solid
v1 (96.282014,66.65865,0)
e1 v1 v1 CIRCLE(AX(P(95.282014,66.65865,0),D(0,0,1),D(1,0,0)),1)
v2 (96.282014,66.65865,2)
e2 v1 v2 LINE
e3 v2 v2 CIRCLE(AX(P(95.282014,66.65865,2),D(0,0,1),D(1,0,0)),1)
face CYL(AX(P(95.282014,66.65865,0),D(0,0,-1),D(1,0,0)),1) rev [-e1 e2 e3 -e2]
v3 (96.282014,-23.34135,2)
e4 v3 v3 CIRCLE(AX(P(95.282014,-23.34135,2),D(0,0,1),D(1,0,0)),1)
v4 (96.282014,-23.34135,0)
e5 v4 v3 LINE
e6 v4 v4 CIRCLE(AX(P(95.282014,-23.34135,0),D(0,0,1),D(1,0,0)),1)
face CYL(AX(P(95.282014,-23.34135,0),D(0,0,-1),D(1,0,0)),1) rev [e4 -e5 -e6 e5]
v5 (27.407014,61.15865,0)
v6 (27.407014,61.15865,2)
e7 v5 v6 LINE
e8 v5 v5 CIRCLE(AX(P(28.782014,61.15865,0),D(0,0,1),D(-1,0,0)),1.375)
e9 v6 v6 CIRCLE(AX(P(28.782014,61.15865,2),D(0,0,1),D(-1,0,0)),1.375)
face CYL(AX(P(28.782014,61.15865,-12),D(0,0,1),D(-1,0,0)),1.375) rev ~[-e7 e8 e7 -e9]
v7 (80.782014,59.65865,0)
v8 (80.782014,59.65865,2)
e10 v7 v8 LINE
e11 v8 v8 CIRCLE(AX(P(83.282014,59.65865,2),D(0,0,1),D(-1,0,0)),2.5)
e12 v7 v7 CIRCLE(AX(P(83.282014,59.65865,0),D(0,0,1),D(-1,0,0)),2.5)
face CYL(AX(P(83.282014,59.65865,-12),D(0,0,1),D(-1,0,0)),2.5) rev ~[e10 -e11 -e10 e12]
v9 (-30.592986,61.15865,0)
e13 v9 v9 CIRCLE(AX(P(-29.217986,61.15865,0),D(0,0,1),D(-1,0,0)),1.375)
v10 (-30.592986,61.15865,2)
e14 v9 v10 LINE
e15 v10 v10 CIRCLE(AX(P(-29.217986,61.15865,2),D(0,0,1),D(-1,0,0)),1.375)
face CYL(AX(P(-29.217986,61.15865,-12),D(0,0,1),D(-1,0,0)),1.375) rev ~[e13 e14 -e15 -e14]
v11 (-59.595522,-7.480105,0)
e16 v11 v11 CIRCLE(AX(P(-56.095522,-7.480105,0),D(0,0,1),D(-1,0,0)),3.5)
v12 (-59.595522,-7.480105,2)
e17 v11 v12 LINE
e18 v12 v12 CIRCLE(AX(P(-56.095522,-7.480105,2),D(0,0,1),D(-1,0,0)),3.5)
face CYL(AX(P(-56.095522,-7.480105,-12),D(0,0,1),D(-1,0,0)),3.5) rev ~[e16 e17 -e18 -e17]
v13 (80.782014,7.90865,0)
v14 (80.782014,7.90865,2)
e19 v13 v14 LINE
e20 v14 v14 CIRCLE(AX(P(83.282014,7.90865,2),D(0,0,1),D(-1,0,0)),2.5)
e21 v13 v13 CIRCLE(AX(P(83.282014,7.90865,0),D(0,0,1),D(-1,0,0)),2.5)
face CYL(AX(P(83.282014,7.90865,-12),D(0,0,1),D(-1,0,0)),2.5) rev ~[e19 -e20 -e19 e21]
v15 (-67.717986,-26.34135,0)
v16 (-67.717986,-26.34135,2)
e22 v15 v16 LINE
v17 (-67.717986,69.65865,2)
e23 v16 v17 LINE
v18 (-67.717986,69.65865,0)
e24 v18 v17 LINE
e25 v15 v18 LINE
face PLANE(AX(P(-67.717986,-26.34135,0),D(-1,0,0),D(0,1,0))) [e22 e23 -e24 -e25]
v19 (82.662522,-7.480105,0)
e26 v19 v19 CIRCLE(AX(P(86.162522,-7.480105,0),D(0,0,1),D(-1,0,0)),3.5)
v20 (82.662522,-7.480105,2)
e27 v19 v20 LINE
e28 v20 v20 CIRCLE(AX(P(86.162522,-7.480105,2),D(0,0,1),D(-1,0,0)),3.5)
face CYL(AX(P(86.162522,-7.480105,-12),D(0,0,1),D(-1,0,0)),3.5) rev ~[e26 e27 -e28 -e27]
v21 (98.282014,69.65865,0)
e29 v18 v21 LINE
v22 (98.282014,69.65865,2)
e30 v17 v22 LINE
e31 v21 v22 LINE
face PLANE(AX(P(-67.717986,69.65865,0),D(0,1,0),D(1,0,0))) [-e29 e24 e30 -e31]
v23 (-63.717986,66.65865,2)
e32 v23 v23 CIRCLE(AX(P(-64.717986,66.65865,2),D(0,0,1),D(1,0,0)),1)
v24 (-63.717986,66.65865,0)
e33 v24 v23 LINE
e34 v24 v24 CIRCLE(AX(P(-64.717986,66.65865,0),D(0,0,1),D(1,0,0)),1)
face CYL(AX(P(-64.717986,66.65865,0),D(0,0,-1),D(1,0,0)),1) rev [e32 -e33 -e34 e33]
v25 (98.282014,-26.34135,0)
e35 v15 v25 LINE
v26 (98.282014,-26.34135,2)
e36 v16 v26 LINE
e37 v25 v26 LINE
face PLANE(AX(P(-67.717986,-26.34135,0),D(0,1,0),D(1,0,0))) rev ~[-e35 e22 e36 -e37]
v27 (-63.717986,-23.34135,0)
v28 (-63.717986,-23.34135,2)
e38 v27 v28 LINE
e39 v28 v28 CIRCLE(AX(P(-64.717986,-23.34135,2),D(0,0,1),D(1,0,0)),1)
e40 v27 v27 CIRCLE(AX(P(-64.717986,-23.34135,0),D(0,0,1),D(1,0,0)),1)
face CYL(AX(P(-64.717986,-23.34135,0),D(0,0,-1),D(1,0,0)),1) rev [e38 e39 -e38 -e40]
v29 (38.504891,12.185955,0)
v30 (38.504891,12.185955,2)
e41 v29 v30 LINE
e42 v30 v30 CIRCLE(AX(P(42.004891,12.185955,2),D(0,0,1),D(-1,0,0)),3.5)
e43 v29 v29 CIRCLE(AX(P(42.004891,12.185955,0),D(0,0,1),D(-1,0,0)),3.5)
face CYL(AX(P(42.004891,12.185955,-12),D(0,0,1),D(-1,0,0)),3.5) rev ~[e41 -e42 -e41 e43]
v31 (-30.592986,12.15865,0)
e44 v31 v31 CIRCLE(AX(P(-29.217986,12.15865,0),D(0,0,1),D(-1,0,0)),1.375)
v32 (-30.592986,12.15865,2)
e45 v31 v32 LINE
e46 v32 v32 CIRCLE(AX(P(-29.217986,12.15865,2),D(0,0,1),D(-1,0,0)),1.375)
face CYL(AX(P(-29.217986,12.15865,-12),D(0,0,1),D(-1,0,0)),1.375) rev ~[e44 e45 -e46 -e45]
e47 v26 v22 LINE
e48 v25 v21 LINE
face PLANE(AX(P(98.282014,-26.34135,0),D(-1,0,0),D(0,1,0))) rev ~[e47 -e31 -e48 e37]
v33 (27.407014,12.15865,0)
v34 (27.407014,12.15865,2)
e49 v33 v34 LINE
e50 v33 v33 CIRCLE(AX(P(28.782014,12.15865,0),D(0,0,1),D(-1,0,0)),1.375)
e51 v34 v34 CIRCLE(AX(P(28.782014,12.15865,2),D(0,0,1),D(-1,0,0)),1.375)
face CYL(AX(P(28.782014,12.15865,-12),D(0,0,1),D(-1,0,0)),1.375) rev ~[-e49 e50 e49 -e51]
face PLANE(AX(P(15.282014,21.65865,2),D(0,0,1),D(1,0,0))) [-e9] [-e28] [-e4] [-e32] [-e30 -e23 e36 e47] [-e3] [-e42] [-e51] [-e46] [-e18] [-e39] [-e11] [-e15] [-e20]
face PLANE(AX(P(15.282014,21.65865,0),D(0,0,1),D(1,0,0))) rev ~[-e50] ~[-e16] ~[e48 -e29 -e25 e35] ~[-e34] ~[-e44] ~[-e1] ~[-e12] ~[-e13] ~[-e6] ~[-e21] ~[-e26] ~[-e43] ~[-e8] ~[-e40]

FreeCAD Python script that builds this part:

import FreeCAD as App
import Part
import Sketcher
Q = App.Units.Quantity


def add_polygon(sketch, points):
    """Adds a closed chain of lines whose ends are joined by coincident constraints."""
    first, n = sketch.GeometryCount, len(points)
    for a, b in zip(points, points[1:] + points[:1]):
        sketch.addGeometry(Part.LineSegment(App.Vector(*a, 0), App.Vector(*b, 0)), False)
    for i in range(n):
        sketch.addConstraint(Sketcher.Constraint("Coincident", first + i, 2, first + (i + 1) % n, 1))

doc = App.newDocument("Part")
body = doc.addObject("PartDesign::Body", "Body")

sketch1 = doc.addObject("Sketcher::SketchObject", "Sketch")
body.addObject(sketch1)
sketch1.AttachmentSupport = (doc.XY_Plane, [""])
sketch1.MapMode = "FlatFace"
add_polygon(sketch1, [(-67.7, 69.7), (-67.7, -26.3), (98.3, -26.3), (98.3, 69.7)])
sketch1.addGeometry(Part.Circle(App.Vector(-64.7, -23.3, 0), App.Vector(0, 0, 1), 1), False)
sketch1.addGeometry(Part.Circle(App.Vector(95.3, -23.3, 0), App.Vector(0, 0, 1), 1), False)
sketch1.addGeometry(Part.Circle(App.Vector(-64.7, 66.7, 0), App.Vector(0, 0, 1), 1), False)
sketch1.addGeometry(Part.Circle(App.Vector(95.3, 66.7, 0), App.Vector(0, 0, 1), 1), False)
sketch1.addConstraint(Sketcher.Constraint("Vertical", 0))
sketch1.addConstraint(Sketcher.Constraint("Horizontal", 1))
sketch1.addConstraint(Sketcher.Constraint("Vertical", 2))
sketch1.addConstraint(Sketcher.Constraint("Horizontal", 3))
sketch1.addConstraint(Sketcher.Constraint("Equal", 4, 5))
sketch1.addConstraint(Sketcher.Constraint("Equal", 5, 6))
sketch1.addConstraint(Sketcher.Constraint("Equal", 6, 7))
sketch1.addConstraint(Sketcher.Constraint("Horizontal", 4, 3, 5, 3))
sketch1.addConstraint(Sketcher.Constraint("Horizontal", 6, 3, 7, 3))
sketch1.addConstraint(Sketcher.Constraint("Vertical", 4, 3, 6, 3))
sketch1.addConstraint(Sketcher.Constraint("Vertical", 5, 3, 7, 3))
sketch1.addConstraint(Sketcher.Constraint("Diameter", 4, Q("2 mm")))
sketch1.addConstraint(Sketcher.Constraint("DistanceX", 1, 1, 1, 2, Q("166 mm")))
sketch1.addConstraint(Sketcher.Constraint("DistanceY", 0, 2, 0, 1, Q("96 mm")))
sketch1.addConstraint(Sketcher.Constraint("DistanceX", 4, 3, 5, 3, Q("160 mm")))
sketch1.addConstraint(Sketcher.Constraint("DistanceY", 4, 3, 6, 3, Q("90 mm")))
sketch1.addConstraint(Sketcher.Constraint("DistanceX", 0, 2, 4, 3, Q("3 mm")))
sketch1.addConstraint(Sketcher.Constraint("DistanceY", 0, 2, 4, 3, Q("3 mm")))
sketch1.addConstraint(Sketcher.Constraint("DistanceY", 4, 3, -1, 1, Q("23.34135 mm")))
sketch1.addConstraint(Sketcher.Constraint("DistanceX", 4, 3, -1, 1, Q("64.717986 mm")))
pad1 = doc.addObject("PartDesign::Pad", "Pad")
body.addObject(pad1)
pad1.Profile = sketch1
pad1.Length = 2

sketch2 = doc.addObject("Sketcher::SketchObject", "Sketch001")
body.addObject(sketch2)
sketch2.AttachmentSupport = (doc.XY_Plane, [""])
sketch2.MapMode = "FlatFace"
sketch2.addGeometry(Part.Circle(App.Vector(83.3, 59.7, 0), App.Vector(0, 0, 1), 2.5), False)
sketch2.addGeometry(Part.Circle(App.Vector(83.3, 7.9, 0), App.Vector(0, 0, 1), 2.5), False)
sketch2.addConstraint(Sketcher.Constraint("Equal", 0, 1))
sketch2.addConstraint(Sketcher.Constraint("Vertical", 0, 3, 1, 3))
sketch2.addConstraint(Sketcher.Constraint("Diameter", 0, Q("5 mm")))
sketch2.addConstraint(Sketcher.Constraint("DistanceY", 1, 3, 0, 3, Q("51.75 mm")))
sketch2.addConstraint(Sketcher.Constraint("DistanceY", -1, 1, 0, 3, Q("59.65865 mm")))
sketch2.addConstraint(Sketcher.Constraint("DistanceX", -1, 1, 0, 3, Q("83.282014 mm")))
doc.recompute()
hole = doc.addObject("PartDesign::Hole", "Hole")
body.addObject(hole)
hole.Profile = sketch2
hole.ThreadType = "None"
hole.Diameter = 5
hole.DepthType = "Dimension"
hole.Depth = 12
hole.DrillPoint = "Angled"
hole.DrillPointAngle = 118
hole.Reversed = True

sketch3 = doc.addObject("Sketcher::SketchObject", "Sketch002")
body.addObject(sketch3)
sketch3.AttachmentSupport = (doc.XY_Plane, [""])
sketch3.MapMode = "FlatFace"
sketch3.addGeometry(Part.Circle(App.Vector(-29.2, 61.2, 0), App.Vector(0, 0, 1), 1.4), False)
sketch3.addGeometry(Part.Circle(App.Vector(-29.2, 12.2, 0), App.Vector(0, 0, 1), 1.4), False)
sketch3.addGeometry(Part.Circle(App.Vector(28.8, 12.2, 0), App.Vector(0, 0, 1), 1.4), False)
sketch3.addGeometry(Part.Circle(App.Vector(28.8, 61.2, 0), App.Vector(0, 0, 1), 1.4), False)
sketch3.addConstraint(Sketcher.Constraint("Equal", 0, 1))
sketch3.addConstraint(Sketcher.Constraint("Equal", 1, 2))
sketch3.addConstraint(Sketcher.Constraint("Equal", 2, 3))
sketch3.addConstraint(Sketcher.Constraint("Horizontal", 1, 3, 2, 3))
sketch3.addConstraint(Sketcher.Constraint("Horizontal", 0, 3, 3, 3))
sketch3.addConstraint(Sketcher.Constraint("Vertical", 0, 3, 1, 3))
sketch3.addConstraint(Sketcher.Constraint("Vertical", 2, 3, 3, 3))
sketch3.addConstraint(Sketcher.Constraint("Diameter", 0, Q("2.75 mm")))
sketch3.addConstraint(Sketcher.Constraint("DistanceY", 1, 3, 0, 3, Q("49 mm")))
sketch3.addConstraint(Sketcher.Constraint("DistanceX", 1, 3, 2, 3, Q("58 mm")))
sketch3.addConstraint(Sketcher.Constraint("DistanceY", -1, 1, 0, 3, Q("61.15865 mm")))
sketch3.addConstraint(Sketcher.Constraint("DistanceX", 0, 3, -1, 1, Q("29.217986 mm")))
doc.recompute()
hole2 = doc.addObject("PartDesign::Hole", "Hole001")
body.addObject(hole2)
hole2.Profile = sketch3
hole2.ThreadType = "None"
hole2.Diameter = 2.75
hole2.DepthType = "Dimension"
hole2.Depth = 12
hole2.DrillPoint = "Angled"
hole2.DrillPointAngle = 118
hole2.Reversed = True

sketch4 = doc.addObject("Sketcher::SketchObject", "Sketch003")
body.addObject(sketch4)
sketch4.AttachmentSupport = (doc.XY_Plane, [""])
sketch4.MapMode = "FlatFace"
sketch4.addGeometry(Part.Circle(App.Vector(-56.1, -7.5, 0), App.Vector(0, 0, 1), 3.5), False)
sketch4.addGeometry(Part.Circle(App.Vector(86.2, -7.5, 0), App.Vector(0, 0, 1), 3.5), False)
sketch4.addGeometry(Part.Circle(App.Vector(42, 12.2, 0), App.Vector(0, 0, 1), 3.5), False)
sketch4.addConstraint(Sketcher.Constraint("Equal", 0, 1))
sketch4.addConstraint(Sketcher.Constraint("Equal", 1, 2))
sketch4.addConstraint(Sketcher.Constraint("Horizontal", 0, 3, 1, 3))
sketch4.addConstraint(Sketcher.Constraint("Diameter", 0, Q("7 mm")))
sketch4.addConstraint(Sketcher.Constraint("DistanceX", 0, 3, -1, 1, Q("56.095522 mm")))
sketch4.addConstraint(Sketcher.Constraint("DistanceX", -1, 1, 2, 3, Q("42.004891 mm")))
sketch4.addConstraint(Sketcher.Constraint("DistanceX", 2, 3, 1, 3, Q("44.157632 mm")))
sketch4.addConstraint(Sketcher.Constraint("DistanceY", 1, 3, 2, 3, Q("19.666061 mm")))
sketch4.addConstraint(Sketcher.Constraint("DistanceY", 0, 3, -1, 1, Q("7.480105 mm")))
doc.recompute()
hole3 = doc.addObject("PartDesign::Hole", "Hole002")
body.addObject(hole3)
hole3.Profile = sketch4
hole3.ThreadType = "None"
hole3.Diameter = 7
hole3.DepthType = "Dimension"
hole3.Depth = 12
hole3.DrillPoint = "Angled"
hole3.DrillPointAngle = 118
hole3.Reversed = True

doc.recompute()
